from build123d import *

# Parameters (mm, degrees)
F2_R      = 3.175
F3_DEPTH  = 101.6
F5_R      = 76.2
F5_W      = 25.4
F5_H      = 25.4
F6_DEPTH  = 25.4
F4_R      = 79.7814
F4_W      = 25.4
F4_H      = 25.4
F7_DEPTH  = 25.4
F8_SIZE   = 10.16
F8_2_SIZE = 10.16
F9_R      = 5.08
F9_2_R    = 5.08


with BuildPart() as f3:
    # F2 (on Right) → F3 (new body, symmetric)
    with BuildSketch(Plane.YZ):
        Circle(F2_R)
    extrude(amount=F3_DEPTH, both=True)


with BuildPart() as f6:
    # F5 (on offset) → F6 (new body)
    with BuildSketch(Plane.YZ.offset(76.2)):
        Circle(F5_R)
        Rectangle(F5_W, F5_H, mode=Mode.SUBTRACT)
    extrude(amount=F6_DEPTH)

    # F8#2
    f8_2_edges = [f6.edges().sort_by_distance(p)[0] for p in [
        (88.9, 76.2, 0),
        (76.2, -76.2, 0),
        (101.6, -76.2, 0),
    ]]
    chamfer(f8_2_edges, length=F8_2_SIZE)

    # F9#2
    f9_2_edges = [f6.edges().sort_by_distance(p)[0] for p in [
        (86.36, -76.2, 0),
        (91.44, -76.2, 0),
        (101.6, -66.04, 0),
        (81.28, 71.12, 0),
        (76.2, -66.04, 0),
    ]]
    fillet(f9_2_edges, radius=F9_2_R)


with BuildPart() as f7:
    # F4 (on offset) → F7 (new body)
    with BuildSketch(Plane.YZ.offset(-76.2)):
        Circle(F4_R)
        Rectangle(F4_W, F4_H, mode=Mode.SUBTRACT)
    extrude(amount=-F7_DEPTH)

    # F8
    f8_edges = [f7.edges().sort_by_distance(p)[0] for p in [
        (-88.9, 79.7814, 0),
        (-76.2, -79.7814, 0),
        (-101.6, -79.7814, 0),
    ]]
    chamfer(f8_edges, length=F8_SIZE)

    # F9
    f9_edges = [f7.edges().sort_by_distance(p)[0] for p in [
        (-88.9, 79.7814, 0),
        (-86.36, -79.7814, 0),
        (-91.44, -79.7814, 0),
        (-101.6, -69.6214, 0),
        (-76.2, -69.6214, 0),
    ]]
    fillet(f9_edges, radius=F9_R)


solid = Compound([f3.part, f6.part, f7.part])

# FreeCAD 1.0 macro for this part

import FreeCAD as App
import Part
import Sketcher
from FreeCAD import Vector
Q = App.Units.Quantity


def edges_at(feature, points):
    """Names of the edges that pass closest to the given points."""
    edges = feature.Shape.Edges
    near = lambda p: min(range(len(edges)), key=lambda i: edges[i].distToShape(Part.Vertex(*p))[0])
    return sorted({f"Edge{near(p) + 1}" for p in points})

doc = App.newDocument("Part")
body = doc.addObject("PartDesign::Body", "Body")

# Sketch on YZ plane
sketch1 = body.newObject("Sketcher::SketchObject", "Sketch")
sketch1.AttachmentSupport = (doc.getObject("YZ_Plane"), [""])
sketch1.MapMode = "FlatFace"
sketch1.addGeometry(Part.Circle(Vector(0, 0, 0), Vector(0, 0, 1), 3.175), False)
sketch1.addConstraint([
    Sketcher.Constraint("Coincident", 0, 3, -1, 1),
    Sketcher.Constraint("Diameter", 0, Q("0.25 in")),
])
pad1 = body.newObject("PartDesign::Pad", "Pad")
pad1.Profile = sketch1
pad1.Length = Q("8 in")
pad1.Midplane = True
body2 = doc.addObject("PartDesign::Body", "Body001")

# Sketch on YZ plane
sketch2 = body2.newObject("Sketcher::SketchObject", "Sketch001")
sketch2.AttachmentSupport = (doc.getObject("YZ_Plane001"), [""])
sketch2.MapMode = "FlatFace"
sketch2.AttachmentOffset = App.Placement(Vector(0, 0, 3 * 25.4), App.Rotation())
sketch2.addGeometry([
    Part.Circle(Vector(0, 0, 0), Vector(0, 0, 1), 76.2),  # 0
    Part.LineSegment(Vector(12.7, -12.7, 0), Vector(-12.7, -12.7, 0)),  # 1
    Part.LineSegment(Vector(-12.7, -12.7, 0), Vector(-12.7, 12.7, 0)),  # 2
    Part.LineSegment(Vector(-12.7, 12.7, 0), Vector(12.7, 12.7, 0)),  # 3
    Part.LineSegment(Vector(12.7, 12.7, 0), Vector(12.7, -12.7, 0)),  # 4
], False)
sketch2.addConstraint([
    Sketcher.Constraint("Coincident", 1, 2, 2, 1),
    Sketcher.Constraint("Coincident", 2, 2, 3, 1),
    Sketcher.Constraint("Coincident", 3, 2, 4, 1),
    Sketcher.Constraint("Coincident", 4, 2, 1, 1),
    Sketcher.Constraint("Horizontal", 1),
    Sketcher.Constraint("Vertical", 2),
    Sketcher.Constraint("Horizontal", 3),
    Sketcher.Constraint("Vertical", 4),
    Sketcher.Constraint("Coincident", 0, 3, -1, 1),
    Sketcher.Constraint("Symmetric", 1, 2, 3, 2, -1, 1),
    Sketcher.Constraint("Equal", 3, 2),
    Sketcher.Constraint("Diameter", 0, Q("6 in")),
    Sketcher.Constraint("DistanceX", 1, 2, 1, 1, Q("1 in")),
])
pad2 = body2.newObject("PartDesign::Pad", "Pad001")
pad2.Profile = sketch2
pad2.Length = Q("1 in")
doc.recompute()

chamfer = body2.newObject("PartDesign::Chamfer", "Chamfer")
chamfer.Base = (pad2, edges_at(pad2, [(88.9, 76.2, 0), (76.2, -76.2, 0), (101.6, -76.2, 0)]))
chamfer.Size = Q("0.4 in")
doc.recompute()

fillet = body2.newObject("PartDesign::Fillet", "Fillet")
fillet.Base = (chamfer, edges_at(chamfer, [
    (86.36, -76.2, 0),
    (91.44, -76.2, 0),
    (101.6, -66.04, 0),
    (81.28, 71.12, 0),
    (76.2, -66.04, 0),
]))
fillet.Radius = Q("0.2 in")
body3 = doc.addObject("PartDesign::Body", "Body002")

# Sketch on YZ plane
sketch3 = body3.newObject("Sketcher::SketchObject", "Sketch002")
sketch3.AttachmentSupport = (doc.getObject("YZ_Plane002"), [""])
sketch3.MapMode = "FlatFace"
sketch3.AttachmentOffset = App.Placement(Vector(0, 0, -3 * 25.4), App.Rotation())
sketch3.addGeometry([
    Part.Circle(Vector(0, 0, 0), Vector(0, 0, 1), 79.7814),  # 0
    Part.LineSegment(Vector(12.7, -12.7, 0), Vector(-12.7, -12.7, 0)),  # 1
    Part.LineSegment(Vector(-12.7, -12.7, 0), Vector(-12.7, 12.7, 0)),  # 2
    Part.LineSegment(Vector(-12.7, 12.7, 0), Vector(12.7, 12.7, 0)),  # 3
    Part.LineSegment(Vector(12.7, 12.7, 0), Vector(12.7, -12.7, 0)),  # 4
], False)
sketch3.addConstraint([
    Sketcher.Constraint("Coincident", 1, 2, 2, 1),
    Sketcher.Constraint("Coincident", 2, 2, 3, 1),
    Sketcher.Constraint("Coincident", 3, 2, 4, 1),
    Sketcher.Constraint("Coincident", 4, 2, 1, 1),
    Sketcher.Constraint("Horizontal", 1),
    Sketcher.Constraint("Vertical", 2),
    Sketcher.Constraint("Horizontal", 3),
    Sketcher.Constraint("Vertical", 4),
    Sketcher.Constraint("Coincident", 0, 3, -1, 1),
    Sketcher.Constraint("Symmetric", 1, 2, 3, 2, -1, 1),
    Sketcher.Constraint("Equal", 3, 2),
    Sketcher.Constraint("DistanceX", 1, 2, 1, 1, Q("1 in")),
    Sketcher.Constraint("Diameter", 0, Q("6.282 in")),
])
pad3 = body3.newObject("PartDesign::Pad", "Pad002")
pad3.Profile = sketch3
pad3.Length = Q("1 in")
pad3.Reversed = True
doc.recompute()

chamfer2 = body3.newObject("PartDesign::Chamfer", "Chamfer001")
chamfer2.Base = (pad3, edges_at(pad3, [(-88.9, 79.781, 0), (-76.2, -79.781, 0), (-101.6, -79.781, 0)]))
chamfer2.Size = Q("0.4 in")
doc.recompute()

fillet2 = body3.newObject("PartDesign::Fillet", "Fillet001")
fillet2.Base = (chamfer2, edges_at(chamfer2, [
    (-88.9, 79.781, 0),
    (-86.36, -79.781, 0),
    (-91.44, -79.781, 0),
    (-101.6, -69.621, 0),
    (-76.2, -69.621, 0),
]))
fillet2.Radius = Q("0.2 in")

doc.recompute()
